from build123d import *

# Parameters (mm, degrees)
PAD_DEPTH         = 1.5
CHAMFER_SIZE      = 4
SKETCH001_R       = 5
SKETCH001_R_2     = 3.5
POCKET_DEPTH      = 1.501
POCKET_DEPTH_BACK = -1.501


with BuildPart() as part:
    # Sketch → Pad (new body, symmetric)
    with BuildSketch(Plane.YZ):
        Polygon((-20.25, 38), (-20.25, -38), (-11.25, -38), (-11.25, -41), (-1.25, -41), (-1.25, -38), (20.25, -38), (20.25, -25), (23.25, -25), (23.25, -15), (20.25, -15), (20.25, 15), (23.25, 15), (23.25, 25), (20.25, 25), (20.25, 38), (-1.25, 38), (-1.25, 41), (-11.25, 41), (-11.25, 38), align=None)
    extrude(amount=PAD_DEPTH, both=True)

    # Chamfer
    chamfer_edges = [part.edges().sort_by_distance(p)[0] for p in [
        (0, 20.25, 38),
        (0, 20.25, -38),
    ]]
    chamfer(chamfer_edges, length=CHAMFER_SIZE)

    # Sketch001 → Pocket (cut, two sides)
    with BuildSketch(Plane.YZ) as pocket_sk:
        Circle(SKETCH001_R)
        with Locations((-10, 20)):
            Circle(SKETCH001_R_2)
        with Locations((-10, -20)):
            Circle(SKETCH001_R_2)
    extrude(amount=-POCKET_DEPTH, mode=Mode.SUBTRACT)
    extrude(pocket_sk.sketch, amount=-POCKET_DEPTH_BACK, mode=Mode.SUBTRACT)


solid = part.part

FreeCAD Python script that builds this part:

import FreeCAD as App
import Part
import Sketcher
from FreeCAD import Vector
Q = App.Units.Quantity


def edges_at(feature, points):
    """Names of the edges that pass closest to the given points."""
    edges = feature.Shape.Edges
    near = lambda p: min(range(len(edges)), key=lambda i: edges[i].distToShape(Part.Vertex(*p))[0])
    return sorted({f"Edge{near(p) + 1}" for p in points})

doc = App.newDocument("Part")
body = doc.addObject("PartDesign::Body", "Body")

sketch1 = body.newObject("Sketcher::SketchObject", "Sketch")
sketch1.AttachmentSupport = (doc.getObject("YZ_Plane"), [""])
sketch1.MapMode = "FlatFace"
sketch1.addGeometry(Part.LineSegment(Vector(-20.2, 38, 0), Vector(-20.2, -38, 0)), False)
sketch1.addGeometry(Part.LineSegment(Vector(-20.2, -38, 0), Vector(-11.2, -38, 0)), False)
sketch1.addGeometry(Part.LineSegment(Vector(-11.2, -38, 0), Vector(-11.2, -41, 0)), False)
sketch1.addGeometry(Part.LineSegment(Vector(-11.2, -41, 0), Vector(-1.2, -41, 0)), False)
sketch1.addGeometry(Part.LineSegment(Vector(-1.2, -41, 0), Vector(-1.2, -38, 0)), False)
sketch1.addGeometry(Part.LineSegment(Vector(-1.2, -38, 0), Vector(20.2, -38, 0)), False)
sketch1.addGeometry(Part.LineSegment(Vector(20.2, -38, 0), Vector(20.2, -25, 0)), False)
sketch1.addGeometry(Part.LineSegment(Vector(20.2, -25, 0), Vector(23.2, -25, 0)), False)
sketch1.addGeometry(Part.LineSegment(Vector(23.2, -25, 0), Vector(23.2, -15, 0)), False)
sketch1.addGeometry(Part.LineSegment(Vector(23.2, -15, 0), Vector(20.2, -15, 0)), False)
sketch1.addGeometry(Part.LineSegment(Vector(20.2, -15, 0), Vector(20.2, 15, 0)), False)
sketch1.addGeometry(Part.LineSegment(Vector(20.2, 15, 0), Vector(23.2, 15, 0)), False)
sketch1.addGeometry(Part.LineSegment(Vector(23.2, 15, 0), Vector(23.2, 25, 0)), False)
sketch1.addGeometry(Part.LineSegment(Vector(23.2, 25, 0), Vector(20.2, 25, 0)), False)
sketch1.addGeometry(Part.LineSegment(Vector(20.2, 25, 0), Vector(20.2, 38, 0)), False)
sketch1.addGeometry(Part.LineSegment(Vector(20.2, 38, 0), Vector(-1.2, 38, 0)), False)
sketch1.addGeometry(Part.LineSegment(Vector(-1.2, 38, 0), Vector(-1.2, 41, 0)), False)
sketch1.addGeometry(Part.LineSegment(Vector(-1.2, 41, 0), Vector(-11.2, 41, 0)), False)
sketch1.addGeometry(Part.LineSegment(Vector(-11.2, 41, 0), Vector(-11.2, 38, 0)), False)
sketch1.addGeometry(Part.LineSegment(Vector(-11.2, 38, 0), Vector(-20.2, 38, 0)), False)
sketch1.addConstraint(Sketcher.Constraint("Coincident", 0, 2, 1, 1))
sketch1.addConstraint(Sketcher.Constraint("Coincident", 1, 2, 2, 1))
sketch1.addConstraint(Sketcher.Constraint("Coincident", 2, 2, 3, 1))
sketch1.addConstraint(Sketcher.Constraint("Coincident", 3, 2, 4, 1))
sketch1.addConstraint(Sketcher.Constraint("Coincident", 4, 2, 5, 1))
sketch1.addConstraint(Sketcher.Constraint("Coincident", 5, 2, 6, 1))
sketch1.addConstraint(Sketcher.Constraint("Coincident", 6, 2, 7, 1))
sketch1.addConstraint(Sketcher.Constraint("Coincident", 7, 2, 8, 1))
sketch1.addConstraint(Sketcher.Constraint("Coincident", 8, 2, 9, 1))
sketch1.addConstraint(Sketcher.Constraint("Coincident", 9, 2, 10, 1))
sketch1.addConstraint(Sketcher.Constraint("Coincident", 10, 2, 11, 1))
sketch1.addConstraint(Sketcher.Constraint("Coincident", 11, 2, 12, 1))
sketch1.addConstraint(Sketcher.Constraint("Coincident", 12, 2, 13, 1))
sketch1.addConstraint(Sketcher.Constraint("Coincident", 13, 2, 14, 1))
sketch1.addConstraint(Sketcher.Constraint("Coincident", 14, 2, 15, 1))
sketch1.addConstraint(Sketcher.Constraint("Coincident", 15, 2, 16, 1))
sketch1.addConstraint(Sketcher.Constraint("Coincident", 16, 2, 17, 1))
sketch1.addConstraint(Sketcher.Constraint("Coincident", 17, 2, 18, 1))
sketch1.addConstraint(Sketcher.Constraint("Coincident", 18, 2, 19, 1))
sketch1.addConstraint(Sketcher.Constraint("Coincident", 19, 2, 0, 1))
sketch1.addConstraint(Sketcher.Constraint("Vertical", 0))
sketch1.addConstraint(Sketcher.Constraint("Horizontal", 1))
sketch1.addConstraint(Sketcher.Constraint("Vertical", 2))
sketch1.addConstraint(Sketcher.Constraint("Horizontal", 3))
sketch1.addConstraint(Sketcher.Constraint("Vertical", 4))
sketch1.addConstraint(Sketcher.Constraint("Horizontal", 5))
sketch1.addConstraint(Sketcher.Constraint("Vertical", 6))
sketch1.addConstraint(Sketcher.Constraint("Horizontal", 7))
sketch1.addConstraint(Sketcher.Constraint("Vertical", 8))
sketch1.addConstraint(Sketcher.Constraint("Horizontal", 9))
sketch1.addConstraint(Sketcher.Constraint("Vertical", 10))
sketch1.addConstraint(Sketcher.Constraint("Horizontal", 11))
sketch1.addConstraint(Sketcher.Constraint("Vertical", 12))
sketch1.addConstraint(Sketcher.Constraint("Horizontal", 13))
sketch1.addConstraint(Sketcher.Constraint("Vertical", 14))
sketch1.addConstraint(Sketcher.Constraint("Horizontal", 15))
sketch1.addConstraint(Sketcher.Constraint("Vertical", 16))
sketch1.addConstraint(Sketcher.Constraint("Horizontal", 17))
sketch1.addConstraint(Sketcher.Constraint("Vertical", 18))
sketch1.addConstraint(Sketcher.Constraint("Horizontal", 19))
sketch1.addConstraint(Sketcher.Constraint("Symmetric", 0, 2, 14, 2, -1, 1))
sketch1.addConstraint(Sketcher.Constraint("Symmetric", 5, 2, 19, 2, -1, 1))
sketch1.addConstraint(Sketcher.Constraint("Symmetric", 8, 2, 11, 2, -1))
sketch1.addConstraint(Sketcher.Constraint("Symmetric", 4, 2, 15, 2, -1))
sketch1.addConstraint(Sketcher.Constraint("Symmetric", 2, 2, 17, 2, -1))
sketch1.addConstraint(Sketcher.Constraint("Vertical", 6, 2, 9, 2))
sketch1.addConstraint(Sketcher.Constraint("Equal", 13, 2))
sketch1.addConstraint(Sketcher.Constraint("Equal", 17, 8))
sketch1.addConstraint(Sketcher.Constraint("Equal", 8, 12))
sketch1.addConstraint(Sketcher.Constraint("DistanceX", 1, 1, 1, 2, Q("9 mm")))
sketch1.addConstraint(Sketcher.Constraint("DistanceX", 3, 1, 3, 2, Q("10 mm")))
sketch1.addConstraint(Sketcher.Constraint("DistanceX", 7, 1, 7, 2, Q("3 mm")))
sketch1.addConstraint(Sketcher.Constraint("DistanceY", 0, 2, 0, 1, Q("76 mm")))
sketch1.addConstraint(Sketcher.Constraint("DistanceY", 6, 1, 6, 2, Q("13 mm")))
sketch1.addConstraint(Sketcher.Constraint("DistanceX", 5, 1, 5, 2, Q("21.5 mm")))
pad1 = body.newObject("PartDesign::Pad", "Pad")
pad1.Profile = sketch1
pad1.Length = 3
pad1.Midplane = True
doc.recompute()

chamfer = body.newObject("PartDesign::Chamfer", "Chamfer")
chamfer.Base = (pad1, edges_at(pad1, [(0, 20.25, 38), (0, 20.25, -38)]))
chamfer.Size = 4

sketch2 = body.newObject("Sketcher::SketchObject", "Sketch001")
sketch2.AttachmentSupport = (doc.getObject("YZ_Plane"), [""])
sketch2.MapMode = "FlatFace"
sketch2.addGeometry(Part.Circle(Vector(0, 0, 0), Vector(0, 0, 1), 5), False)
sketch2.addGeometry(Part.Circle(Vector(-10, 20, 0), Vector(0, 0, 1), 3.5), False)
sketch2.addGeometry(Part.Circle(Vector(-10, -20, 0), Vector(0, 0, 1), 3.5), False)
sketch2.addConstraint(Sketcher.Constraint("Coincident", 0, 3, -1, 1))
sketch2.addConstraint(Sketcher.Constraint("Equal", 1, 2))
sketch2.addConstraint(Sketcher.Constraint("Symmetric", 1, 3, 2, 3, -1))
sketch2.addConstraint(Sketcher.Constraint("Diameter", 0, Q("10 mm")))
sketch2.addConstraint(Sketcher.Constraint("Diameter", 1, Q("7 mm")))
sketch2.addConstraint(Sketcher.Constraint("DistanceX", 1, 3, -1, 1, Q("10 mm")))
sketch2.addConstraint(Sketcher.Constraint("DistanceY", -1, 1, 1, 3, Q("20 mm")))
pocket1 = body.newObject("PartDesign::Pocket", "Pocket")
pocket1.Profile = sketch2
pocket1.Type = "ThroughAll"
pocket1.Midplane = True

doc.recompute()
